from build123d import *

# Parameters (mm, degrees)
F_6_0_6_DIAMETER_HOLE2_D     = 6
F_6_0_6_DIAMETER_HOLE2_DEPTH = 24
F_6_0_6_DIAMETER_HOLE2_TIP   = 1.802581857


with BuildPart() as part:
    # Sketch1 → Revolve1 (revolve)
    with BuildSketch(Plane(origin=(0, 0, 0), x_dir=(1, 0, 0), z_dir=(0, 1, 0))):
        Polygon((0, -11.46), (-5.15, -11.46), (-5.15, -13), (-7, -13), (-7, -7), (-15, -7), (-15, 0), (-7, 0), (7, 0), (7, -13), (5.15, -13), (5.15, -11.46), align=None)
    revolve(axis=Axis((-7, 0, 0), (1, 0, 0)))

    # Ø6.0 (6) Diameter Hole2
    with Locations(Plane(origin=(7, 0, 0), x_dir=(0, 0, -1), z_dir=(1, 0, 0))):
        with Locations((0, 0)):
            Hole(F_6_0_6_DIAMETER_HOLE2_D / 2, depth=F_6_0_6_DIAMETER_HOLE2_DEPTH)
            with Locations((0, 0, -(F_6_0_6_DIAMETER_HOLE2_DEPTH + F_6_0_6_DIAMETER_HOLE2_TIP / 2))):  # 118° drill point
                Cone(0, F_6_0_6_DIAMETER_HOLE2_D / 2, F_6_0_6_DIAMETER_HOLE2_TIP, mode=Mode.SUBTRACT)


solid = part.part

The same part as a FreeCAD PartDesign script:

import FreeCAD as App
import Part
import Sketcher
from FreeCAD import Vector

doc = App.newDocument("Part")
body = doc.addObject("PartDesign::Body", "Body")

# Sketch on XZ plane
sketch1 = body.newObject("Sketcher::SketchObject", "Sketch")
sketch1.AttachmentSupport = (doc.getObject("XZ_Plane"), [""])
sketch1.MapMode = "FlatFace"
sketch1.addGeometry(Part.LineSegment(Vector(-5.2, 11.5, 0), Vector(5.2, 11.5, 0)), False)
sketch1.addGeometry(Part.LineSegment(Vector(5.2, 11.5, 0), Vector(5.2, 13, 0)), False)
sketch1.addGeometry(Part.LineSegment(Vector(5.2, 13, 0), Vector(7, 13, 0)), False)
sketch1.addGeometry(Part.LineSegment(Vector(7, 13, 0), Vector(7, 0, 0)), False)
sketch1.addGeometry(Part.LineSegment(Vector(7, 0, 0), Vector(-15, 0, 0)), False)
sketch1.addGeometry(Part.LineSegment(Vector(-15, 0, 0), Vector(-15, 7, 0)), False)
sketch1.addGeometry(Part.LineSegment(Vector(-15, 7, 0), Vector(-7, 7, 0)), False)
sketch1.addGeometry(Part.LineSegment(Vector(-7, 7, 0), Vector(-7, 13, 0)), False)
sketch1.addGeometry(Part.LineSegment(Vector(-7, 13, 0), Vector(-5.2, 13, 0)), False)
sketch1.addGeometry(Part.LineSegment(Vector(-5.2, 13, 0), Vector(-5.2, 11.5, 0)), False)
sketch1.addConstraint(Sketcher.Constraint("Coincident", 0, 2, 1, 1))
sketch1.addConstraint(Sketcher.Constraint("Coincident", 1, 2, 2, 1))
sketch1.addConstraint(Sketcher.Constraint("Coincident", 2, 2, 3, 1))
sketch1.addConstraint(Sketcher.Constraint("Coincident", 3, 2, 4, 1))
sketch1.addConstraint(Sketcher.Constraint("Coincident", 4, 2, 5, 1))
sketch1.addConstraint(Sketcher.Constraint("Coincident", 5, 2, 6, 1))
sketch1.addConstraint(Sketcher.Constraint("Coincident", 6, 2, 7, 1))
sketch1.addConstraint(Sketcher.Constraint("Coincident", 7, 2, 8, 1))
sketch1.addConstraint(Sketcher.Constraint("Coincident", 8, 2, 9, 1))
sketch1.addConstraint(Sketcher.Constraint("Coincident", 9, 2, 0, 1))
sketch1.addConstraint(Sketcher.Constraint("Horizontal", 0))
sketch1.addConstraint(Sketcher.Constraint("Vertical", 1))
sketch1.addConstraint(Sketcher.Constraint("Horizontal", 2))
sketch1.addConstraint(Sketcher.Constraint("Vertical", 3))
sketch1.addConstraint(Sketcher.Constraint("Horizontal", 4))
sketch1.addConstraint(Sketcher.Constraint("Vertical", 5))
sketch1.addConstraint(Sketcher.Constraint("Horizontal", 6))
sketch1.addConstraint(Sketcher.Constraint("Vertical", 7))
sketch1.addConstraint(Sketcher.Constraint("Horizontal", 8))
sketch1.addConstraint(Sketcher.Constraint("Vertical", 9))
sketch1.addConstraint(Sketcher.Constraint("Symmetric", 2, 2, 7, 2, -2))
sketch1.addConstraint(Sketcher.Constraint("PointOnObject", 3, 2, -1))
sketch1.addConstraint(Sketcher.Constraint("Equal", 2, 8))
sketch1.addConstraint(Sketcher.Constraint("DistanceX", 4, 2, 4, 1, 22.0))
sketch1.addConstraint(Sketcher.Constraint("DistanceX", 6, 1, 6, 2, 8.0))
sketch1.addConstraint(Sketcher.Constraint("DistanceY", 3, 2, 3, 1, 13.0))
sketch1.addConstraint(Sketcher.Constraint("DistanceY", 5, 1, 5, 2, 7.0))
sketch1.addConstraint(Sketcher.Constraint("DistanceX", 0, 1, 0, 2, 10.3))
sketch1.addConstraint(Sketcher.Constraint("DistanceY", 1, 1, 1, 2, 1.54))
revolution = body.newObject("PartDesign::Revolution", "Revolution")
revolution.Profile = sketch1
revolution.ReferenceAxis = (sketch1, ["H_Axis"])
revolution.Angle = 360

# Sketch on YZ plane
sketch2 = body.newObject("Sketcher::SketchObject", "Sketch001")
sketch2.AttachmentSupport = (doc.getObject("YZ_Plane"), [""])
sketch2.MapMode = "FlatFace"
sketch2.AttachmentOffset = App.Placement(Vector(0, 0, 7), App.Rotation())
sketch2.addGeometry(Part.Circle(Vector(0, 0, 0), Vector(0, 0, 1), 3), False)
sketch2.addConstraint(Sketcher.Constraint("Coincident", 0, 3, -1, 1))
sketch2.addConstraint(Sketcher.Constraint("Diameter", 0, 6.0))
doc.recompute()
hole = body.newObject("PartDesign::Hole", "Hole")
hole.Profile = sketch2
hole.ThreadType = "None"
hole.Diameter = 6
hole.DepthType = "Dimension"
hole.Depth = 24
hole.DrillPoint = "Angled"
hole.DrillPointAngle = 118

doc.recompute()
